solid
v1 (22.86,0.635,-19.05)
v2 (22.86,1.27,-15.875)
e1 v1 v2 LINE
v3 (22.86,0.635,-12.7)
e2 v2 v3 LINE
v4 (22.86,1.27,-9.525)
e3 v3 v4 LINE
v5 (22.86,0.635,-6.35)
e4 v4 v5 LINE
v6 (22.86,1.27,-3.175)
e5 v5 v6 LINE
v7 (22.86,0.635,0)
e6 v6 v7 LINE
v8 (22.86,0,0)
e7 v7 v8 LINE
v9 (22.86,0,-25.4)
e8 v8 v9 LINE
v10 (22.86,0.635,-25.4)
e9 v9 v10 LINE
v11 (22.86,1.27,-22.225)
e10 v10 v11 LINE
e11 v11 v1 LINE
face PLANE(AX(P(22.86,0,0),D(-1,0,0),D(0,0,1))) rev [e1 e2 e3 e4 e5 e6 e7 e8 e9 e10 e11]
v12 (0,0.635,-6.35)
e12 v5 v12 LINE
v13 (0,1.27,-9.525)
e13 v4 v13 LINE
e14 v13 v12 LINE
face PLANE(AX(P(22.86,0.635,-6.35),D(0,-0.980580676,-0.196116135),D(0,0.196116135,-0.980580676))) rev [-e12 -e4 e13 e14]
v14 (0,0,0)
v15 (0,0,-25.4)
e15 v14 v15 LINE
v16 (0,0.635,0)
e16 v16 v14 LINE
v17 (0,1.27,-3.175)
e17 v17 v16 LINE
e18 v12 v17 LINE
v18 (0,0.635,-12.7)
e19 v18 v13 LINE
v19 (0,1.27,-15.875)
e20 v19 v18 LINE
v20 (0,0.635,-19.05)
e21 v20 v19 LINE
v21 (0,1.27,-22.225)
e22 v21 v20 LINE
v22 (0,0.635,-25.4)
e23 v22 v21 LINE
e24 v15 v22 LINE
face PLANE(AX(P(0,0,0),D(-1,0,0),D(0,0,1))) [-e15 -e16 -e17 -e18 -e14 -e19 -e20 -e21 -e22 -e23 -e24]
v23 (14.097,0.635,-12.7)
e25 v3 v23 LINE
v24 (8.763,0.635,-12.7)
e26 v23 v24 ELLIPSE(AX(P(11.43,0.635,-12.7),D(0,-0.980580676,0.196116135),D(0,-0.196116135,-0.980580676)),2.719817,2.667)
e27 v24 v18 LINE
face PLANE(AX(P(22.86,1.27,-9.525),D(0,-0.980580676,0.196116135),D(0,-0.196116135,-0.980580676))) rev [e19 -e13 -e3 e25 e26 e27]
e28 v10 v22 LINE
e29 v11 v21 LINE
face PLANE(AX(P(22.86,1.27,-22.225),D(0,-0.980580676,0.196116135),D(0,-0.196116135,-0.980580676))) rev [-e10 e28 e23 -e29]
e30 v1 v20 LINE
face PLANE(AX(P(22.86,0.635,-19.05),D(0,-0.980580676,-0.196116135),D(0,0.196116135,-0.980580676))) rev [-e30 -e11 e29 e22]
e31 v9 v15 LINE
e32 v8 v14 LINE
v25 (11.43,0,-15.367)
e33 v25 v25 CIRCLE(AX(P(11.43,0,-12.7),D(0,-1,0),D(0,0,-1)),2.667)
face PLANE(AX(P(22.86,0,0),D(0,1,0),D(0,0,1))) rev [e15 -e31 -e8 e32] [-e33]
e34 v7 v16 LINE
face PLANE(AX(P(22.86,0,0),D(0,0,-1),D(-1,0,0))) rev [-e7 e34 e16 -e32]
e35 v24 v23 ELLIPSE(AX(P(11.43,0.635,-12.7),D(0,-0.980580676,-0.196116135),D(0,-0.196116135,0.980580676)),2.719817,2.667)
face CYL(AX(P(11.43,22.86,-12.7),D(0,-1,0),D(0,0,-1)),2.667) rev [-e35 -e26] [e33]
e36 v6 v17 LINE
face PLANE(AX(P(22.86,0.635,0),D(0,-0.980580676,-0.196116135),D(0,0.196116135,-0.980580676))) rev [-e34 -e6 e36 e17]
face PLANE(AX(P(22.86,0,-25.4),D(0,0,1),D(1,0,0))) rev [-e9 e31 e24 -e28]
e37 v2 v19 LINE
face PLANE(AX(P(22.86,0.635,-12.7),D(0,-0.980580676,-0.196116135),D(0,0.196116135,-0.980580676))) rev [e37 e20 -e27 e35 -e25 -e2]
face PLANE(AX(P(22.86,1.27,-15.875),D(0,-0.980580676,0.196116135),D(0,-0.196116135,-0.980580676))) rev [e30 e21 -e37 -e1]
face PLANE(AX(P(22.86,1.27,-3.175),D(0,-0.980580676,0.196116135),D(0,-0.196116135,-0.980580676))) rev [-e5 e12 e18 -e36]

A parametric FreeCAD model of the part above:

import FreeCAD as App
import Part
import Sketcher
from FreeCAD import Vector
Q = App.Units.Quantity

doc = App.newDocument("Part")
params = doc.addObject("Spreadsheet::Sheet", "Params")
for row, (alias, value) in enumerate([
    ("sketch1_height", "1 in"),
    ("sketch1_width", "0.025 in"),
    ("pad1_length", "0.9 in"),
    ("sketch2_diameter", "0.21 in"),
    ("pocket1_length", "0.9 in"),
], start=1):
    params.set(f"A{row}", alias)
    params.set(f"B{row}", "=" + value)
    params.setAlias(f"B{row}", alias)

body = doc.addObject("PartDesign::Body", "Body")

# Sketch on YZ plane
sketch1 = body.newObject("Sketcher::SketchObject", "Sketch")
sketch1.AttachmentSupport = (doc.getObject("YZ_Plane"), [""])
sketch1.MapMode = "FlatFace"
sketch1.addGeometry(Part.LineSegment(Vector(0, 0, 0), Vector(0, -25.4, 0)), False)
sketch1.addGeometry(Part.LineSegment(Vector(0, -25.4, 0), Vector(0.6, -25.4, 0)), False)
sketch1.addGeometry(Part.LineSegment(Vector(0.6, -25.4, 0), Vector(1.3, -22.2, 0)), False)
sketch1.addGeometry(Part.LineSegment(Vector(1.3, -22.2, 0), Vector(0.6, -19.1, 0)), False)
sketch1.addGeometry(Part.LineSegment(Vector(0.6, -19.1, 0), Vector(1.3, -15.9, 0)), False)
sketch1.addGeometry(Part.LineSegment(Vector(1.3, -15.9, 0), Vector(0.6, -12.7, 0)), False)
sketch1.addGeometry(Part.LineSegment(Vector(0.6, -12.7, 0), Vector(1.3, -9.5, 0)), False)
sketch1.addGeometry(Part.LineSegment(Vector(1.3, -9.5, 0), Vector(0.6, -6.3, 0)), False)
sketch1.addGeometry(Part.LineSegment(Vector(0.6, -6.3, 0), Vector(1.3, -3.2, 0)), False)
sketch1.addGeometry(Part.LineSegment(Vector(1.3, -3.2, 0), Vector(0.6, 0, 0)), False)
sketch1.addGeometry(Part.LineSegment(Vector(0.6, 0, 0), Vector(0, 0, 0)), False)
sketch1.addConstraint(Sketcher.Constraint("Coincident", 0, 2, 1, 1))
sketch1.addConstraint(Sketcher.Constraint("Coincident", 1, 2, 2, 1))
sketch1.addConstraint(Sketcher.Constraint("Coincident", 2, 2, 3, 1))
sketch1.addConstraint(Sketcher.Constraint("Coincident", 3, 2, 4, 1))
sketch1.addConstraint(Sketcher.Constraint("Coincident", 4, 2, 5, 1))
sketch1.addConstraint(Sketcher.Constraint("Coincident", 5, 2, 6, 1))
sketch1.addConstraint(Sketcher.Constraint("Coincident", 6, 2, 7, 1))
sketch1.addConstraint(Sketcher.Constraint("Coincident", 7, 2, 8, 1))
sketch1.addConstraint(Sketcher.Constraint("Coincident", 8, 2, 9, 1))
sketch1.addConstraint(Sketcher.Constraint("Coincident", 9, 2, 10, 1))
sketch1.addConstraint(Sketcher.Constraint("Coincident", 10, 2, 0, 1))
sketch1.addConstraint(Sketcher.Constraint("Vertical", 0))
sketch1.addConstraint(Sketcher.Constraint("Horizontal", 1))
sketch1.addConstraint(Sketcher.Constraint("Horizontal", 10))
sketch1.addConstraint(Sketcher.Constraint("Coincident", 10, 2, -1, 1))
sketch1.addConstraint(Sketcher.Constraint("Parallel", 2, 4))
sketch1.addConstraint(Sketcher.Constraint("Parallel", 3, 5))
sketch1.addConstraint(Sketcher.Constraint("Parallel", 4, 6))
sketch1.addConstraint(Sketcher.Constraint("Parallel", 5, 7))
sketch1.addConstraint(Sketcher.Constraint("Parallel", 6, 8))
sketch1.addConstraint(Sketcher.Constraint("Parallel", 7, 9))
sketch1.addConstraint(Sketcher.Constraint("Vertical", 1, 2, 3, 2))
sketch1.addConstraint(Sketcher.Constraint("Vertical", 2, 2, 4, 2))
sketch1.addConstraint(Sketcher.Constraint("Vertical", 3, 2, 5, 2))
sketch1.addConstraint(Sketcher.Constraint("Vertical", 4, 2, 6, 2))
sketch1.addConstraint(Sketcher.Constraint("Vertical", 5, 2, 7, 2))
sketch1.addConstraint(Sketcher.Constraint("Vertical", 6, 2, 8, 2))
sketch1.addConstraint(Sketcher.Constraint("Vertical", 7, 2, 9, 2))
sketch1.addConstraint(Sketcher.Constraint("Equal", 2, 3))
sketch1.addConstraint(Sketcher.Constraint("DistanceY", 0, 2, 0, 1, Q("1 in")))
sketch1.addConstraint(Sketcher.Constraint("DistanceX", 1, 1, 1, 2, Q("0.025 in")))
sketch1.addConstraint(Sketcher.Constraint("DistanceX", -1, 1, 2, 2, Q("0.05 in")))
sketch1.setExpression("Constraints[29]", "Params.sketch1_height")
sketch1.setExpression("Constraints[30]", "Params.sketch1_width")
pad1 = body.newObject("PartDesign::Pad", "Pad")
pad1.Profile = sketch1
pad1.setExpression("Length", "Params.pad1_length")

# Sketch on XZ plane
sketch2 = body.newObject("Sketcher::SketchObject", "Sketch001")
sketch2.AttachmentSupport = (doc.getObject("XZ_Plane"), [""])
sketch2.MapMode = "FlatFace"
sketch2.addGeometry(Part.Circle(Vector(11.4, -12.7, 0), Vector(0, 0, 1), 2.7), False)
sketch2.addConstraint(Sketcher.Constraint("Diameter", 0, Q("0.21 in")))
sketch2.addConstraint(Sketcher.Constraint("DistanceY", 0, 3, -1, 1, Q("0.5 in")))
sketch2.addConstraint(Sketcher.Constraint("DistanceX", -1, 1, 0, 3, Q("0.45 in")))
sketch2.setExpression("Constraints[0]", "Params.sketch2_diameter")
pocket1 = body.newObject("PartDesign::Pocket", "Pocket")
pocket1.Profile = sketch2
pocket1.setExpression("Length", "Params.pocket1_length")

doc.recompute()
